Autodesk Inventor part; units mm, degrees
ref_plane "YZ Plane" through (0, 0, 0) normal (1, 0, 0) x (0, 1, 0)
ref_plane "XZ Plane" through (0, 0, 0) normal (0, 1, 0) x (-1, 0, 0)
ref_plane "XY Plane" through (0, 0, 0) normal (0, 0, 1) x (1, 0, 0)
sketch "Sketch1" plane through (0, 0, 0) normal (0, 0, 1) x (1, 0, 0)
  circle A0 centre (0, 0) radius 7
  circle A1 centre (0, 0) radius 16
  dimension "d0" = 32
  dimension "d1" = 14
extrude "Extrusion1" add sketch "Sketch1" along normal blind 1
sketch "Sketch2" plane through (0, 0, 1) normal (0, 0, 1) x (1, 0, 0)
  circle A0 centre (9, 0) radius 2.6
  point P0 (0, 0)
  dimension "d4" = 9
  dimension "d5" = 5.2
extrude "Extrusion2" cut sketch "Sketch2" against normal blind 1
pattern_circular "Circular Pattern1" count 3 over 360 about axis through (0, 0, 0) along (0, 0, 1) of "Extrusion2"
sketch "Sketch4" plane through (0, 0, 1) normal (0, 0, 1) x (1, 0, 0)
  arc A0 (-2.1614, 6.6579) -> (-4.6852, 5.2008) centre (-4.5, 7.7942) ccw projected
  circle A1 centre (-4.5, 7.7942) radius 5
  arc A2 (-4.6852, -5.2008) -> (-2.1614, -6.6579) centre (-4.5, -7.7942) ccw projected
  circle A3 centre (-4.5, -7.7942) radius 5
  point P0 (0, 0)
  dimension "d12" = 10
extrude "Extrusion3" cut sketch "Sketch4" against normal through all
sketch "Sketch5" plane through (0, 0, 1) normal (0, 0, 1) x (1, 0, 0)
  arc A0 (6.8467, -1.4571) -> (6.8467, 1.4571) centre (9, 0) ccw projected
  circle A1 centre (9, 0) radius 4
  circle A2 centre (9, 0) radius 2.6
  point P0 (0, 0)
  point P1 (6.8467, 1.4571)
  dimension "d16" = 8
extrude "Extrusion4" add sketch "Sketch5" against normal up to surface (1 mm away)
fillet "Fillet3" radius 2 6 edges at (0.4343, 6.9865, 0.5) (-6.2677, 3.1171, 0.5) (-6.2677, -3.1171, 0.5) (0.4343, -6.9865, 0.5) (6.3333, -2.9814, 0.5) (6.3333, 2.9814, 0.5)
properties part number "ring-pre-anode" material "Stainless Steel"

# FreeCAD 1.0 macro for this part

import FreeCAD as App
import Part
import Sketcher
Q = App.Units.Quantity


def edges_at(feature, points):
    """Names of the edges that pass closest to the given points."""
    edges = feature.Shape.Edges
    near = lambda p: min(range(len(edges)), key=lambda i: edges[i].distToShape(Part.Vertex(*p))[0])
    return sorted({f"Edge{near(p) + 1}" for p in points})

doc = App.newDocument("Part")
body = doc.addObject("PartDesign::Body", "Body")

# Sketch on XY plane
sketch1 = body.newObject("Sketcher::SketchObject", "Sketch")
sketch1.AttachmentSupport = (doc.getObject("XY_Plane"), [""])
sketch1.MapMode = "FlatFace"
sketch1.addGeometry([
    Part.Circle(App.Vector(0, 0, 0), App.Vector(0, 0, 1), 16),
    Part.Circle(App.Vector(0, 0, 0), App.Vector(0, 0, 1), 7),
], False)
sketch1.addConstraint([
    Sketcher.Constraint("Coincident", 0, 3, -1, 1),
    Sketcher.Constraint("Coincident", 1, 3, -1, 1),
    Sketcher.Constraint("Diameter", 0, Q("32 mm")),
    Sketcher.Constraint("Diameter", 1, Q("14 mm")),
])
pad1 = body.newObject("PartDesign::Pad", "Pad")
pad1.Profile = sketch1
pad1.Length = 1

# Sketch on XY plane
sketch2 = body.newObject("Sketcher::SketchObject", "Sketch001")
sketch2.AttachmentSupport = (doc.getObject("XY_Plane"), [""])
sketch2.MapMode = "FlatFace"
sketch2.AttachmentOffset = App.Placement(App.Vector(0, 0, 1), App.Rotation())
sketch2.addGeometry(Part.Circle(App.Vector(9, 0, 0), App.Vector(0, 0, 1), 2.6), False)
sketch2.addConstraint([
    Sketcher.Constraint("PointOnObject", 0, 3, -1),
    Sketcher.Constraint("Diameter", 0, Q("5.2 mm")),
    Sketcher.Constraint("DistanceX", -1, 1, 0, 3, Q("9 mm")),
])
pocket1 = body.newObject("PartDesign::Pocket", "Pocket")
pocket1.Profile = sketch2
pocket1.Length = 1
doc.recompute()

polarpattern = body.newObject("PartDesign::PolarPattern", "PolarPattern")
polarpattern.Originals = [pocket1]
polarpattern.Axis = (doc.getObject("Z_Axis"), [""])
polarpattern.Angle = 360
polarpattern.Occurrences = 3
body.Tip = polarpattern

# Sketch on XY plane
sketch3 = body.newObject("Sketcher::SketchObject", "Sketch002")
sketch3.AttachmentSupport = (doc.getObject("XY_Plane"), [""])
sketch3.MapMode = "FlatFace"
sketch3.AttachmentOffset = App.Placement(App.Vector(0, 0, 1), App.Rotation())
sketch3.addGeometry([
    Part.Circle(App.Vector(-4, 8, 0), App.Vector(0, 0, 1), 5),
    Part.Circle(App.Vector(-4, -8, 0), App.Vector(0, 0, 1), 5),
], False)
sketch3.addConstraint([
    Sketcher.Constraint("Equal", 0, 1),
    Sketcher.Constraint("Symmetric", 0, 3, 1, 3, -1),
    Sketcher.Constraint("Diameter", 0, Q("10 mm")),
    Sketcher.Constraint("DistanceX", 0, 3, -1, 1, Q("4.5 mm")),
    Sketcher.Constraint("DistanceY", -1, 1, 0, 3, Q("7.7942 mm")),
])
pocket2 = body.newObject("PartDesign::Pocket", "Pocket001")
pocket2.Profile = sketch3
pocket2.Type = "ThroughAll"

# Sketch on XY plane
sketch4 = body.newObject("Sketcher::SketchObject", "Sketch003")
sketch4.AttachmentSupport = (doc.getObject("XY_Plane"), [""])
sketch4.MapMode = "FlatFace"
sketch4.AttachmentOffset = App.Placement(App.Vector(0, 0, 1), App.Rotation())
sketch4.addGeometry([
    Part.Circle(App.Vector(9, 0, 0), App.Vector(0, 0, 1), 4),
    Part.Circle(App.Vector(9, 0, 0), App.Vector(0, 0, 1), 2.6),
], False)
sketch4.addConstraint([
    Sketcher.Constraint("Coincident", 1, 3, 0, 3),
    Sketcher.Constraint("PointOnObject", 0, 3, -1),
    Sketcher.Constraint("Diameter", 0, Q("8 mm")),
    Sketcher.Constraint("Diameter", 1, Q("5.2 mm")),
    Sketcher.Constraint("DistanceX", -1, 1, 0, 3, Q("9 mm")),
])
pad2 = body.newObject("PartDesign::Pad", "Pad001")
pad2.Profile = sketch4
pad2.Length = 1
pad2.Reversed = True
doc.recompute()

fillet = body.newObject("PartDesign::Fillet", "Fillet")
fillet.Base = (pad2, edges_at(pad2, [
    (0.434, 6.987, 0.5),
    (-6.268, 3.117, 0.5),
    (-6.268, -3.117, 0.5),
    (0.434, -6.987, 0.5),
    (6.333, -2.981, 0.5),
    (6.333, 2.981, 0.5),
]))
fillet.Radius = 2

doc.recompute()
